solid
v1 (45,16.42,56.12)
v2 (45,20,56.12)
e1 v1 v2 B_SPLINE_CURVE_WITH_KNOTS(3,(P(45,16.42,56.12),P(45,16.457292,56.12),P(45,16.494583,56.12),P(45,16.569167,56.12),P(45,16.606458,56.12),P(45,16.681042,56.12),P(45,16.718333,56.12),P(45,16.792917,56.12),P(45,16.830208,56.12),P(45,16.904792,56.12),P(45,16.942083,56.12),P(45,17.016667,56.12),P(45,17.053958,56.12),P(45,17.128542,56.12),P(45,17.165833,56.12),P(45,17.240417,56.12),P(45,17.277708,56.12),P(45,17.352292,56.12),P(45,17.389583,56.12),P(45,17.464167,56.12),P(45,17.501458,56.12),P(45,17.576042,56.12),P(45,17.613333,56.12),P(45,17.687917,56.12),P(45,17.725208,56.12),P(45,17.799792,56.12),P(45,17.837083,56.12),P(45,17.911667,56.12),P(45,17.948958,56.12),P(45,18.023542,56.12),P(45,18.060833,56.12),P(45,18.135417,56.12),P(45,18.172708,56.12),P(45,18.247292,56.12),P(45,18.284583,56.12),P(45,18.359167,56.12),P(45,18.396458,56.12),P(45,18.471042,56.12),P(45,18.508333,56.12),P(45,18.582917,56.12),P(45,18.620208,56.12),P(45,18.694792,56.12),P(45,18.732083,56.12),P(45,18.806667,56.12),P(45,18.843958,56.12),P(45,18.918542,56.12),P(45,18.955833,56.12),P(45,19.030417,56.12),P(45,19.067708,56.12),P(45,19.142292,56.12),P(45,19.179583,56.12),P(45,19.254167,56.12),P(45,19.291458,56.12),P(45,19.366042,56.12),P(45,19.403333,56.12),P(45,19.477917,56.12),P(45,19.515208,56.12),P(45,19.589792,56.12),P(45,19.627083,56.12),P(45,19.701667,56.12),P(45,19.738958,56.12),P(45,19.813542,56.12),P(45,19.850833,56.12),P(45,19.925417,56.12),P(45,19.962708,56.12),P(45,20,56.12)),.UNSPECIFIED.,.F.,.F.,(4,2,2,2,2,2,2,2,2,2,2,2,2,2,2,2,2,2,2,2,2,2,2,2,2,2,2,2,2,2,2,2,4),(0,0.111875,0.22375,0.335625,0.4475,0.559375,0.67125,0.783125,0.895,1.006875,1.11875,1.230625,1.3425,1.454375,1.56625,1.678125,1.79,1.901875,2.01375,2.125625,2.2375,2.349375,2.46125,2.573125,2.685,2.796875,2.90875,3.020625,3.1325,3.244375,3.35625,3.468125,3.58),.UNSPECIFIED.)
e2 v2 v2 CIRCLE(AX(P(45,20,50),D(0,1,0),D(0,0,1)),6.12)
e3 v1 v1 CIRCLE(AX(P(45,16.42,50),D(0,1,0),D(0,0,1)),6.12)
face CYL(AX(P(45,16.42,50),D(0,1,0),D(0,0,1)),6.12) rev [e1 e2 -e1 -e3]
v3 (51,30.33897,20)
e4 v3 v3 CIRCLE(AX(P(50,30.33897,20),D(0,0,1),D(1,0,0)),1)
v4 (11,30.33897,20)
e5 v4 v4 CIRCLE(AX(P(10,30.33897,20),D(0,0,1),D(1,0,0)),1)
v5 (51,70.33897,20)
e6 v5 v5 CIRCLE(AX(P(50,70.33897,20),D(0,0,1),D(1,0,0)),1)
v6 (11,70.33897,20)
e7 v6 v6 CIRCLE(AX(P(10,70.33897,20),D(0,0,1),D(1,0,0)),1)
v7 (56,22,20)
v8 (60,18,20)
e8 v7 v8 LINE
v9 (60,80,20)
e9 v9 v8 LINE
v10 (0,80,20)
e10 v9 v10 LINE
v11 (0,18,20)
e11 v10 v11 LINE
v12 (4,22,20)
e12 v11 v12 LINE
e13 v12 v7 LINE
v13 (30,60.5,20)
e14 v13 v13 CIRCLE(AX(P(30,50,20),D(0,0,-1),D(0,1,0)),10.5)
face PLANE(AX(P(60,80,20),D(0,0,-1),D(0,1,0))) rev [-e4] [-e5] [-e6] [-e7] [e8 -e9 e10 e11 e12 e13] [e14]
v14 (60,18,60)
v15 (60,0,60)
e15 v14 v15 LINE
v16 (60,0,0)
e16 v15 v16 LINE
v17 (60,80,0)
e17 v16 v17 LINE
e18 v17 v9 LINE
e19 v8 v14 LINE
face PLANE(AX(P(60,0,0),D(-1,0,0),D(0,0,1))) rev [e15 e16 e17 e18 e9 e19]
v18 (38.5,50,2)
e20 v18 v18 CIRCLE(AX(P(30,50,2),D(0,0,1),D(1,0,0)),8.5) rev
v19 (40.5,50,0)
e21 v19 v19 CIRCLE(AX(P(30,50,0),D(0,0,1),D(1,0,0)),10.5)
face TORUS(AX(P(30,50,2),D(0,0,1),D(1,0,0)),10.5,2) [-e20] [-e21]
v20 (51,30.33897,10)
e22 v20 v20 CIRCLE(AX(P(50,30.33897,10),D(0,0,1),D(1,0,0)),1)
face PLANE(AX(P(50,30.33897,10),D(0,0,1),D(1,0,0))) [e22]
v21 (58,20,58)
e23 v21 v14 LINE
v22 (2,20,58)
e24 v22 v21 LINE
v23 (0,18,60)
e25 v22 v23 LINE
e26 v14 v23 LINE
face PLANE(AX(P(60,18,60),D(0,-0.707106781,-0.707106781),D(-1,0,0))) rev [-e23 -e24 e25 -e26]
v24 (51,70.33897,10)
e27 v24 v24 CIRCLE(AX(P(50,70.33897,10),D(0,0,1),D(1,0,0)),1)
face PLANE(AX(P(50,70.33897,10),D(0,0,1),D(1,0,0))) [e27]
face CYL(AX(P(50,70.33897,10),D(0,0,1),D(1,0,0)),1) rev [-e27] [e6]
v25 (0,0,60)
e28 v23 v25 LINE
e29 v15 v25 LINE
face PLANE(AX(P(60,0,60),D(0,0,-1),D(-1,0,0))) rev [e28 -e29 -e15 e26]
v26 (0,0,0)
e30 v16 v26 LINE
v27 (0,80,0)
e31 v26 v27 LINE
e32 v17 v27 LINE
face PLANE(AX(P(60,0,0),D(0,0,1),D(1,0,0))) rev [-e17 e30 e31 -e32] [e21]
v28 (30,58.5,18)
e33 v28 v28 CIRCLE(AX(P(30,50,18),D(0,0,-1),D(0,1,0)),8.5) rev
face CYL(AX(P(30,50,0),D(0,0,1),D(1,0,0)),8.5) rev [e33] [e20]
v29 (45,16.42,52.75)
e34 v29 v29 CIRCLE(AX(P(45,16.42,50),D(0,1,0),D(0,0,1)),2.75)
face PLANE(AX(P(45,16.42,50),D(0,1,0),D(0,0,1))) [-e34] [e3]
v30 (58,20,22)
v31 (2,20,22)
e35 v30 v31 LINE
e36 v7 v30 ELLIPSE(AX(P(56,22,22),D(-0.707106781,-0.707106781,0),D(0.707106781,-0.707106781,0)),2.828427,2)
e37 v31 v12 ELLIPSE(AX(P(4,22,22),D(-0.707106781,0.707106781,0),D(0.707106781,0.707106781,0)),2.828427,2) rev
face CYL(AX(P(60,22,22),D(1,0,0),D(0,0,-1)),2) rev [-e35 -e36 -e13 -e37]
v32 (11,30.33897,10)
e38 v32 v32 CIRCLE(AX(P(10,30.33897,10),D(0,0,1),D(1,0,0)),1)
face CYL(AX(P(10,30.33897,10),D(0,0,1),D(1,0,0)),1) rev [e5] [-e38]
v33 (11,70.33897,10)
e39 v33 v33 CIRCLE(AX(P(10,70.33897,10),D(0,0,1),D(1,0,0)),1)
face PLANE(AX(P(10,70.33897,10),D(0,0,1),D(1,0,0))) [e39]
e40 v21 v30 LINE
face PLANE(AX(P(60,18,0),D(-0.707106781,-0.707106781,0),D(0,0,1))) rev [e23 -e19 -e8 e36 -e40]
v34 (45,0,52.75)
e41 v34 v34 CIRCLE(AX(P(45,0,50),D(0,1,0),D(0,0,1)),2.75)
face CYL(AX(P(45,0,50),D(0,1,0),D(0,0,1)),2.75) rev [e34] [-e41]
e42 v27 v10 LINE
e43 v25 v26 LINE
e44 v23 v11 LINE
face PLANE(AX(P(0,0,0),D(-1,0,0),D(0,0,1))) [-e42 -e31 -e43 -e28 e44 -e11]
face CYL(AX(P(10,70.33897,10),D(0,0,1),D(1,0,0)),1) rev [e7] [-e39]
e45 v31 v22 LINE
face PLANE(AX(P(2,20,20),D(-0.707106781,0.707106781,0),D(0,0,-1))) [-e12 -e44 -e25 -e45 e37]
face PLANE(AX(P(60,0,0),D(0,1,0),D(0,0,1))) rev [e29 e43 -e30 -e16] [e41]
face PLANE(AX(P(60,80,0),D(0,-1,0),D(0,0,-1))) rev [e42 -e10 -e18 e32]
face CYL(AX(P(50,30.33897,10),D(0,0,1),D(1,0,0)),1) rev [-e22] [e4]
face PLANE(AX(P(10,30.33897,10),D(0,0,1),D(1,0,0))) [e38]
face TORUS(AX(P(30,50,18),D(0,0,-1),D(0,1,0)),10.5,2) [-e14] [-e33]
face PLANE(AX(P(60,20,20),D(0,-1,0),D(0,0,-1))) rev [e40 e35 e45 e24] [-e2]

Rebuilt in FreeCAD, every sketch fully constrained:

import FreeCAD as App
import Part
import Sketcher

V = App.Vector


def edges_at(feature, points):
    """Names of the edges that pass closest to the given points."""
    edges = feature.Shape.Edges
    near = lambda p: min(range(len(edges)), key=lambda i: edges[i].distToShape(Part.Vertex(*p))[0])
    return sorted({f"Edge{near(p) + 1}" for p in points})

doc = App.newDocument("Part")
body = doc.addObject("PartDesign::Body", "Body")

# Sketch on YZ plane
sketch1 = body.newObject("Sketcher::SketchObject", "Sketch")
sketch1.AttachmentSupport = (doc.getObject("YZ_Plane"), [""])
sketch1.MapMode = "FlatFace"
sketch1.addGeometry([
    Part.LineSegment(V(0, 0, 0), V(80, 0, 0)),  # 0
    Part.LineSegment(V(80, 0, 0), V(80, 20, 0)),  # 1
    Part.LineSegment(V(80, 20, 0), V(20, 20, 0)),  # 2
    Part.LineSegment(V(20, 20, 0), V(20, 60, 0)),  # 3
    Part.LineSegment(V(20, 60, 0), V(0, 60, 0)),  # 4
    Part.LineSegment(V(0, 60, 0), V(0, 0, 0)),  # 5
], False)
sketch1.addConstraint([
    Sketcher.Constraint("Coincident", 0, 2, 1, 1),
    Sketcher.Constraint("Coincident", 1, 2, 2, 1),
    Sketcher.Constraint("Coincident", 2, 2, 3, 1),
    Sketcher.Constraint("Coincident", 3, 2, 4, 1),
    Sketcher.Constraint("Coincident", 4, 2, 5, 1),
    Sketcher.Constraint("Coincident", 5, 2, 0, 1),
    Sketcher.Constraint("Horizontal", 0),
    Sketcher.Constraint("Vertical", 1),
    Sketcher.Constraint("Horizontal", 2),
    Sketcher.Constraint("Vertical", 3),
    Sketcher.Constraint("Horizontal", 4),
    Sketcher.Constraint("Vertical", 5),
    Sketcher.Constraint("Coincident", 5, 2, -1, 1),
    Sketcher.Constraint("Equal", 4, 1),
    Sketcher.Constraint("Equal", 2, 5),
    Sketcher.Constraint("DistanceX", 0, 1, 0, 2, 80.0),
    Sketcher.Constraint("DistanceX", 2, 2, 2, 1, 60.0),
])
pad1 = body.newObject("PartDesign::Pad", "Pad")
pad1.Profile = sketch1
pad1.Length = 60

# Sketch on XY plane
sketch2 = body.newObject("Sketcher::SketchObject", "Sketch001")
sketch2.AttachmentSupport = (doc.getObject("XY_Plane"), [""])
sketch2.MapMode = "FlatFace"
sketch2.AttachmentOffset = App.Placement(V(0, 0, 20), App.Rotation())
sketch2.addGeometry(Part.Circle(V(30, 50, 0), V(0, 0, 1), 8), False)
sketch2.addConstraint([
    Sketcher.Constraint("Diameter", 0, 17.0),
    Sketcher.Constraint("DistanceX", -1, 1, 0, 3, 30.0),
    Sketcher.Constraint("DistanceY", -1, 1, 0, 3, 50.0),
])
pocket1 = body.newObject("PartDesign::Pocket", "Pocket")
pocket1.Profile = sketch2
pocket1.Type = "ThroughAll"
doc.recompute()

fillet = body.newObject("PartDesign::Fillet", "Fillet")
fillet.Base = (pocket1, edges_at(pocket1, [(21.5, 50, 0), (21.5, 50, 20)]))
fillet.Radius = 2

# Sketch on XY plane
sketch3 = body.newObject("Sketcher::SketchObject", "Sketch002")
sketch3.AttachmentSupport = (doc.getObject("XY_Plane"), [""])
sketch3.MapMode = "FlatFace"
sketch3.AttachmentOffset = App.Placement(V(0, 0, 20), App.Rotation())
sketch3.addGeometry([
    Part.Circle(V(10, 70.3, 0), V(0, 0, 1), 1),
    Part.Circle(V(50, 70.3, 0), V(0, 0, 1), 1),
    Part.Circle(V(50, 30.3, 0), V(0, 0, 1), 1),
    Part.Circle(V(10, 30.3, 0), V(0, 0, 1), 1),
], False)
sketch3.addConstraint([
    Sketcher.Constraint("Equal", 0, 1),
    Sketcher.Constraint("Equal", 1, 2),
    Sketcher.Constraint("Equal", 2, 3),
    Sketcher.Constraint("Horizontal", 0, 3, 1, 3),
    Sketcher.Constraint("Horizontal", 2, 3, 3, 3),
    Sketcher.Constraint("Vertical", 1, 3, 2, 3),
    Sketcher.Constraint("Vertical", 0, 3, 3, 3),
    Sketcher.Constraint("Diameter", 0, 2.0),
    Sketcher.Constraint("DistanceX", -1, 1, 0, 3, 10.0),
    Sketcher.Constraint("DistanceX", -1, 1, 1, 3, 50.0),
    Sketcher.Constraint("DistanceY", 2, 3, 1, 3, 40.0),
    Sketcher.Constraint("DistanceY", -1, 1, 0, 3, 70.33897),
])
pocket2 = body.newObject("PartDesign::Pocket", "Pocket001")
pocket2.Profile = sketch3
pocket2.Length = 10

# Sketch on XZ plane
sketch4 = body.newObject("Sketcher::SketchObject", "Sketch003")
sketch4.AttachmentSupport = (doc.getObject("XZ_Plane"), [""])
sketch4.MapMode = "FlatFace"
sketch4.AttachmentOffset = App.Placement(V(0, 0, -20), App.Rotation())
sketch4.addGeometry(Part.Circle(V(45, 50, 0), V(0, 0, 1), 6), False)
sketch4.addConstraint([
    Sketcher.Constraint("Diameter", 0, 12.24),
    Sketcher.Constraint("DistanceX", -1, 1, 0, 3, 45.0),
    Sketcher.Constraint("DistanceY", -1, 1, 0, 3, 50.0),
])
pocket3 = body.newObject("PartDesign::Pocket", "Pocket002")
pocket3.Profile = sketch4
pocket3.Length = 3.58
pocket3.Reversed = True

# Sketch on XZ plane
sketch5 = body.newObject("Sketcher::SketchObject", "Sketch004")
sketch5.AttachmentSupport = (doc.getObject("XZ_Plane"), [""])
sketch5.MapMode = "FlatFace"
sketch5.AttachmentOffset = App.Placement(V(0, 0, -16.42), App.Rotation())
sketch5.addGeometry(Part.Circle(V(45, 50, 0), V(0, 0, 1), 2.8), False)
sketch5.addConstraint([
    Sketcher.Constraint("Diameter", 0, 5.5),
    Sketcher.Constraint("DistanceX", -1, 1, 0, 3, 45.0),
    Sketcher.Constraint("DistanceY", -1, 1, 0, 3, 50.0),
])
pocket4 = body.newObject("PartDesign::Pocket", "Pocket003")
pocket4.Profile = sketch5
pocket4.Type = "ThroughAll"
pocket4.Reversed = True
doc.recompute()

chamfer = body.newObject("PartDesign::Chamfer", "Chamfer")
chamfer.Base = (pocket4, edges_at(pocket4, [(30, 20, 60), (60, 20, 40), (0, 20, 40)]))
chamfer.Size = 2
doc.recompute()

fillet2 = body.newObject("PartDesign::Fillet", "Fillet001")
fillet2.Base = (chamfer, edges_at(chamfer, [(30, 20, 20)]))
fillet2.Radius = 2

doc.recompute()
